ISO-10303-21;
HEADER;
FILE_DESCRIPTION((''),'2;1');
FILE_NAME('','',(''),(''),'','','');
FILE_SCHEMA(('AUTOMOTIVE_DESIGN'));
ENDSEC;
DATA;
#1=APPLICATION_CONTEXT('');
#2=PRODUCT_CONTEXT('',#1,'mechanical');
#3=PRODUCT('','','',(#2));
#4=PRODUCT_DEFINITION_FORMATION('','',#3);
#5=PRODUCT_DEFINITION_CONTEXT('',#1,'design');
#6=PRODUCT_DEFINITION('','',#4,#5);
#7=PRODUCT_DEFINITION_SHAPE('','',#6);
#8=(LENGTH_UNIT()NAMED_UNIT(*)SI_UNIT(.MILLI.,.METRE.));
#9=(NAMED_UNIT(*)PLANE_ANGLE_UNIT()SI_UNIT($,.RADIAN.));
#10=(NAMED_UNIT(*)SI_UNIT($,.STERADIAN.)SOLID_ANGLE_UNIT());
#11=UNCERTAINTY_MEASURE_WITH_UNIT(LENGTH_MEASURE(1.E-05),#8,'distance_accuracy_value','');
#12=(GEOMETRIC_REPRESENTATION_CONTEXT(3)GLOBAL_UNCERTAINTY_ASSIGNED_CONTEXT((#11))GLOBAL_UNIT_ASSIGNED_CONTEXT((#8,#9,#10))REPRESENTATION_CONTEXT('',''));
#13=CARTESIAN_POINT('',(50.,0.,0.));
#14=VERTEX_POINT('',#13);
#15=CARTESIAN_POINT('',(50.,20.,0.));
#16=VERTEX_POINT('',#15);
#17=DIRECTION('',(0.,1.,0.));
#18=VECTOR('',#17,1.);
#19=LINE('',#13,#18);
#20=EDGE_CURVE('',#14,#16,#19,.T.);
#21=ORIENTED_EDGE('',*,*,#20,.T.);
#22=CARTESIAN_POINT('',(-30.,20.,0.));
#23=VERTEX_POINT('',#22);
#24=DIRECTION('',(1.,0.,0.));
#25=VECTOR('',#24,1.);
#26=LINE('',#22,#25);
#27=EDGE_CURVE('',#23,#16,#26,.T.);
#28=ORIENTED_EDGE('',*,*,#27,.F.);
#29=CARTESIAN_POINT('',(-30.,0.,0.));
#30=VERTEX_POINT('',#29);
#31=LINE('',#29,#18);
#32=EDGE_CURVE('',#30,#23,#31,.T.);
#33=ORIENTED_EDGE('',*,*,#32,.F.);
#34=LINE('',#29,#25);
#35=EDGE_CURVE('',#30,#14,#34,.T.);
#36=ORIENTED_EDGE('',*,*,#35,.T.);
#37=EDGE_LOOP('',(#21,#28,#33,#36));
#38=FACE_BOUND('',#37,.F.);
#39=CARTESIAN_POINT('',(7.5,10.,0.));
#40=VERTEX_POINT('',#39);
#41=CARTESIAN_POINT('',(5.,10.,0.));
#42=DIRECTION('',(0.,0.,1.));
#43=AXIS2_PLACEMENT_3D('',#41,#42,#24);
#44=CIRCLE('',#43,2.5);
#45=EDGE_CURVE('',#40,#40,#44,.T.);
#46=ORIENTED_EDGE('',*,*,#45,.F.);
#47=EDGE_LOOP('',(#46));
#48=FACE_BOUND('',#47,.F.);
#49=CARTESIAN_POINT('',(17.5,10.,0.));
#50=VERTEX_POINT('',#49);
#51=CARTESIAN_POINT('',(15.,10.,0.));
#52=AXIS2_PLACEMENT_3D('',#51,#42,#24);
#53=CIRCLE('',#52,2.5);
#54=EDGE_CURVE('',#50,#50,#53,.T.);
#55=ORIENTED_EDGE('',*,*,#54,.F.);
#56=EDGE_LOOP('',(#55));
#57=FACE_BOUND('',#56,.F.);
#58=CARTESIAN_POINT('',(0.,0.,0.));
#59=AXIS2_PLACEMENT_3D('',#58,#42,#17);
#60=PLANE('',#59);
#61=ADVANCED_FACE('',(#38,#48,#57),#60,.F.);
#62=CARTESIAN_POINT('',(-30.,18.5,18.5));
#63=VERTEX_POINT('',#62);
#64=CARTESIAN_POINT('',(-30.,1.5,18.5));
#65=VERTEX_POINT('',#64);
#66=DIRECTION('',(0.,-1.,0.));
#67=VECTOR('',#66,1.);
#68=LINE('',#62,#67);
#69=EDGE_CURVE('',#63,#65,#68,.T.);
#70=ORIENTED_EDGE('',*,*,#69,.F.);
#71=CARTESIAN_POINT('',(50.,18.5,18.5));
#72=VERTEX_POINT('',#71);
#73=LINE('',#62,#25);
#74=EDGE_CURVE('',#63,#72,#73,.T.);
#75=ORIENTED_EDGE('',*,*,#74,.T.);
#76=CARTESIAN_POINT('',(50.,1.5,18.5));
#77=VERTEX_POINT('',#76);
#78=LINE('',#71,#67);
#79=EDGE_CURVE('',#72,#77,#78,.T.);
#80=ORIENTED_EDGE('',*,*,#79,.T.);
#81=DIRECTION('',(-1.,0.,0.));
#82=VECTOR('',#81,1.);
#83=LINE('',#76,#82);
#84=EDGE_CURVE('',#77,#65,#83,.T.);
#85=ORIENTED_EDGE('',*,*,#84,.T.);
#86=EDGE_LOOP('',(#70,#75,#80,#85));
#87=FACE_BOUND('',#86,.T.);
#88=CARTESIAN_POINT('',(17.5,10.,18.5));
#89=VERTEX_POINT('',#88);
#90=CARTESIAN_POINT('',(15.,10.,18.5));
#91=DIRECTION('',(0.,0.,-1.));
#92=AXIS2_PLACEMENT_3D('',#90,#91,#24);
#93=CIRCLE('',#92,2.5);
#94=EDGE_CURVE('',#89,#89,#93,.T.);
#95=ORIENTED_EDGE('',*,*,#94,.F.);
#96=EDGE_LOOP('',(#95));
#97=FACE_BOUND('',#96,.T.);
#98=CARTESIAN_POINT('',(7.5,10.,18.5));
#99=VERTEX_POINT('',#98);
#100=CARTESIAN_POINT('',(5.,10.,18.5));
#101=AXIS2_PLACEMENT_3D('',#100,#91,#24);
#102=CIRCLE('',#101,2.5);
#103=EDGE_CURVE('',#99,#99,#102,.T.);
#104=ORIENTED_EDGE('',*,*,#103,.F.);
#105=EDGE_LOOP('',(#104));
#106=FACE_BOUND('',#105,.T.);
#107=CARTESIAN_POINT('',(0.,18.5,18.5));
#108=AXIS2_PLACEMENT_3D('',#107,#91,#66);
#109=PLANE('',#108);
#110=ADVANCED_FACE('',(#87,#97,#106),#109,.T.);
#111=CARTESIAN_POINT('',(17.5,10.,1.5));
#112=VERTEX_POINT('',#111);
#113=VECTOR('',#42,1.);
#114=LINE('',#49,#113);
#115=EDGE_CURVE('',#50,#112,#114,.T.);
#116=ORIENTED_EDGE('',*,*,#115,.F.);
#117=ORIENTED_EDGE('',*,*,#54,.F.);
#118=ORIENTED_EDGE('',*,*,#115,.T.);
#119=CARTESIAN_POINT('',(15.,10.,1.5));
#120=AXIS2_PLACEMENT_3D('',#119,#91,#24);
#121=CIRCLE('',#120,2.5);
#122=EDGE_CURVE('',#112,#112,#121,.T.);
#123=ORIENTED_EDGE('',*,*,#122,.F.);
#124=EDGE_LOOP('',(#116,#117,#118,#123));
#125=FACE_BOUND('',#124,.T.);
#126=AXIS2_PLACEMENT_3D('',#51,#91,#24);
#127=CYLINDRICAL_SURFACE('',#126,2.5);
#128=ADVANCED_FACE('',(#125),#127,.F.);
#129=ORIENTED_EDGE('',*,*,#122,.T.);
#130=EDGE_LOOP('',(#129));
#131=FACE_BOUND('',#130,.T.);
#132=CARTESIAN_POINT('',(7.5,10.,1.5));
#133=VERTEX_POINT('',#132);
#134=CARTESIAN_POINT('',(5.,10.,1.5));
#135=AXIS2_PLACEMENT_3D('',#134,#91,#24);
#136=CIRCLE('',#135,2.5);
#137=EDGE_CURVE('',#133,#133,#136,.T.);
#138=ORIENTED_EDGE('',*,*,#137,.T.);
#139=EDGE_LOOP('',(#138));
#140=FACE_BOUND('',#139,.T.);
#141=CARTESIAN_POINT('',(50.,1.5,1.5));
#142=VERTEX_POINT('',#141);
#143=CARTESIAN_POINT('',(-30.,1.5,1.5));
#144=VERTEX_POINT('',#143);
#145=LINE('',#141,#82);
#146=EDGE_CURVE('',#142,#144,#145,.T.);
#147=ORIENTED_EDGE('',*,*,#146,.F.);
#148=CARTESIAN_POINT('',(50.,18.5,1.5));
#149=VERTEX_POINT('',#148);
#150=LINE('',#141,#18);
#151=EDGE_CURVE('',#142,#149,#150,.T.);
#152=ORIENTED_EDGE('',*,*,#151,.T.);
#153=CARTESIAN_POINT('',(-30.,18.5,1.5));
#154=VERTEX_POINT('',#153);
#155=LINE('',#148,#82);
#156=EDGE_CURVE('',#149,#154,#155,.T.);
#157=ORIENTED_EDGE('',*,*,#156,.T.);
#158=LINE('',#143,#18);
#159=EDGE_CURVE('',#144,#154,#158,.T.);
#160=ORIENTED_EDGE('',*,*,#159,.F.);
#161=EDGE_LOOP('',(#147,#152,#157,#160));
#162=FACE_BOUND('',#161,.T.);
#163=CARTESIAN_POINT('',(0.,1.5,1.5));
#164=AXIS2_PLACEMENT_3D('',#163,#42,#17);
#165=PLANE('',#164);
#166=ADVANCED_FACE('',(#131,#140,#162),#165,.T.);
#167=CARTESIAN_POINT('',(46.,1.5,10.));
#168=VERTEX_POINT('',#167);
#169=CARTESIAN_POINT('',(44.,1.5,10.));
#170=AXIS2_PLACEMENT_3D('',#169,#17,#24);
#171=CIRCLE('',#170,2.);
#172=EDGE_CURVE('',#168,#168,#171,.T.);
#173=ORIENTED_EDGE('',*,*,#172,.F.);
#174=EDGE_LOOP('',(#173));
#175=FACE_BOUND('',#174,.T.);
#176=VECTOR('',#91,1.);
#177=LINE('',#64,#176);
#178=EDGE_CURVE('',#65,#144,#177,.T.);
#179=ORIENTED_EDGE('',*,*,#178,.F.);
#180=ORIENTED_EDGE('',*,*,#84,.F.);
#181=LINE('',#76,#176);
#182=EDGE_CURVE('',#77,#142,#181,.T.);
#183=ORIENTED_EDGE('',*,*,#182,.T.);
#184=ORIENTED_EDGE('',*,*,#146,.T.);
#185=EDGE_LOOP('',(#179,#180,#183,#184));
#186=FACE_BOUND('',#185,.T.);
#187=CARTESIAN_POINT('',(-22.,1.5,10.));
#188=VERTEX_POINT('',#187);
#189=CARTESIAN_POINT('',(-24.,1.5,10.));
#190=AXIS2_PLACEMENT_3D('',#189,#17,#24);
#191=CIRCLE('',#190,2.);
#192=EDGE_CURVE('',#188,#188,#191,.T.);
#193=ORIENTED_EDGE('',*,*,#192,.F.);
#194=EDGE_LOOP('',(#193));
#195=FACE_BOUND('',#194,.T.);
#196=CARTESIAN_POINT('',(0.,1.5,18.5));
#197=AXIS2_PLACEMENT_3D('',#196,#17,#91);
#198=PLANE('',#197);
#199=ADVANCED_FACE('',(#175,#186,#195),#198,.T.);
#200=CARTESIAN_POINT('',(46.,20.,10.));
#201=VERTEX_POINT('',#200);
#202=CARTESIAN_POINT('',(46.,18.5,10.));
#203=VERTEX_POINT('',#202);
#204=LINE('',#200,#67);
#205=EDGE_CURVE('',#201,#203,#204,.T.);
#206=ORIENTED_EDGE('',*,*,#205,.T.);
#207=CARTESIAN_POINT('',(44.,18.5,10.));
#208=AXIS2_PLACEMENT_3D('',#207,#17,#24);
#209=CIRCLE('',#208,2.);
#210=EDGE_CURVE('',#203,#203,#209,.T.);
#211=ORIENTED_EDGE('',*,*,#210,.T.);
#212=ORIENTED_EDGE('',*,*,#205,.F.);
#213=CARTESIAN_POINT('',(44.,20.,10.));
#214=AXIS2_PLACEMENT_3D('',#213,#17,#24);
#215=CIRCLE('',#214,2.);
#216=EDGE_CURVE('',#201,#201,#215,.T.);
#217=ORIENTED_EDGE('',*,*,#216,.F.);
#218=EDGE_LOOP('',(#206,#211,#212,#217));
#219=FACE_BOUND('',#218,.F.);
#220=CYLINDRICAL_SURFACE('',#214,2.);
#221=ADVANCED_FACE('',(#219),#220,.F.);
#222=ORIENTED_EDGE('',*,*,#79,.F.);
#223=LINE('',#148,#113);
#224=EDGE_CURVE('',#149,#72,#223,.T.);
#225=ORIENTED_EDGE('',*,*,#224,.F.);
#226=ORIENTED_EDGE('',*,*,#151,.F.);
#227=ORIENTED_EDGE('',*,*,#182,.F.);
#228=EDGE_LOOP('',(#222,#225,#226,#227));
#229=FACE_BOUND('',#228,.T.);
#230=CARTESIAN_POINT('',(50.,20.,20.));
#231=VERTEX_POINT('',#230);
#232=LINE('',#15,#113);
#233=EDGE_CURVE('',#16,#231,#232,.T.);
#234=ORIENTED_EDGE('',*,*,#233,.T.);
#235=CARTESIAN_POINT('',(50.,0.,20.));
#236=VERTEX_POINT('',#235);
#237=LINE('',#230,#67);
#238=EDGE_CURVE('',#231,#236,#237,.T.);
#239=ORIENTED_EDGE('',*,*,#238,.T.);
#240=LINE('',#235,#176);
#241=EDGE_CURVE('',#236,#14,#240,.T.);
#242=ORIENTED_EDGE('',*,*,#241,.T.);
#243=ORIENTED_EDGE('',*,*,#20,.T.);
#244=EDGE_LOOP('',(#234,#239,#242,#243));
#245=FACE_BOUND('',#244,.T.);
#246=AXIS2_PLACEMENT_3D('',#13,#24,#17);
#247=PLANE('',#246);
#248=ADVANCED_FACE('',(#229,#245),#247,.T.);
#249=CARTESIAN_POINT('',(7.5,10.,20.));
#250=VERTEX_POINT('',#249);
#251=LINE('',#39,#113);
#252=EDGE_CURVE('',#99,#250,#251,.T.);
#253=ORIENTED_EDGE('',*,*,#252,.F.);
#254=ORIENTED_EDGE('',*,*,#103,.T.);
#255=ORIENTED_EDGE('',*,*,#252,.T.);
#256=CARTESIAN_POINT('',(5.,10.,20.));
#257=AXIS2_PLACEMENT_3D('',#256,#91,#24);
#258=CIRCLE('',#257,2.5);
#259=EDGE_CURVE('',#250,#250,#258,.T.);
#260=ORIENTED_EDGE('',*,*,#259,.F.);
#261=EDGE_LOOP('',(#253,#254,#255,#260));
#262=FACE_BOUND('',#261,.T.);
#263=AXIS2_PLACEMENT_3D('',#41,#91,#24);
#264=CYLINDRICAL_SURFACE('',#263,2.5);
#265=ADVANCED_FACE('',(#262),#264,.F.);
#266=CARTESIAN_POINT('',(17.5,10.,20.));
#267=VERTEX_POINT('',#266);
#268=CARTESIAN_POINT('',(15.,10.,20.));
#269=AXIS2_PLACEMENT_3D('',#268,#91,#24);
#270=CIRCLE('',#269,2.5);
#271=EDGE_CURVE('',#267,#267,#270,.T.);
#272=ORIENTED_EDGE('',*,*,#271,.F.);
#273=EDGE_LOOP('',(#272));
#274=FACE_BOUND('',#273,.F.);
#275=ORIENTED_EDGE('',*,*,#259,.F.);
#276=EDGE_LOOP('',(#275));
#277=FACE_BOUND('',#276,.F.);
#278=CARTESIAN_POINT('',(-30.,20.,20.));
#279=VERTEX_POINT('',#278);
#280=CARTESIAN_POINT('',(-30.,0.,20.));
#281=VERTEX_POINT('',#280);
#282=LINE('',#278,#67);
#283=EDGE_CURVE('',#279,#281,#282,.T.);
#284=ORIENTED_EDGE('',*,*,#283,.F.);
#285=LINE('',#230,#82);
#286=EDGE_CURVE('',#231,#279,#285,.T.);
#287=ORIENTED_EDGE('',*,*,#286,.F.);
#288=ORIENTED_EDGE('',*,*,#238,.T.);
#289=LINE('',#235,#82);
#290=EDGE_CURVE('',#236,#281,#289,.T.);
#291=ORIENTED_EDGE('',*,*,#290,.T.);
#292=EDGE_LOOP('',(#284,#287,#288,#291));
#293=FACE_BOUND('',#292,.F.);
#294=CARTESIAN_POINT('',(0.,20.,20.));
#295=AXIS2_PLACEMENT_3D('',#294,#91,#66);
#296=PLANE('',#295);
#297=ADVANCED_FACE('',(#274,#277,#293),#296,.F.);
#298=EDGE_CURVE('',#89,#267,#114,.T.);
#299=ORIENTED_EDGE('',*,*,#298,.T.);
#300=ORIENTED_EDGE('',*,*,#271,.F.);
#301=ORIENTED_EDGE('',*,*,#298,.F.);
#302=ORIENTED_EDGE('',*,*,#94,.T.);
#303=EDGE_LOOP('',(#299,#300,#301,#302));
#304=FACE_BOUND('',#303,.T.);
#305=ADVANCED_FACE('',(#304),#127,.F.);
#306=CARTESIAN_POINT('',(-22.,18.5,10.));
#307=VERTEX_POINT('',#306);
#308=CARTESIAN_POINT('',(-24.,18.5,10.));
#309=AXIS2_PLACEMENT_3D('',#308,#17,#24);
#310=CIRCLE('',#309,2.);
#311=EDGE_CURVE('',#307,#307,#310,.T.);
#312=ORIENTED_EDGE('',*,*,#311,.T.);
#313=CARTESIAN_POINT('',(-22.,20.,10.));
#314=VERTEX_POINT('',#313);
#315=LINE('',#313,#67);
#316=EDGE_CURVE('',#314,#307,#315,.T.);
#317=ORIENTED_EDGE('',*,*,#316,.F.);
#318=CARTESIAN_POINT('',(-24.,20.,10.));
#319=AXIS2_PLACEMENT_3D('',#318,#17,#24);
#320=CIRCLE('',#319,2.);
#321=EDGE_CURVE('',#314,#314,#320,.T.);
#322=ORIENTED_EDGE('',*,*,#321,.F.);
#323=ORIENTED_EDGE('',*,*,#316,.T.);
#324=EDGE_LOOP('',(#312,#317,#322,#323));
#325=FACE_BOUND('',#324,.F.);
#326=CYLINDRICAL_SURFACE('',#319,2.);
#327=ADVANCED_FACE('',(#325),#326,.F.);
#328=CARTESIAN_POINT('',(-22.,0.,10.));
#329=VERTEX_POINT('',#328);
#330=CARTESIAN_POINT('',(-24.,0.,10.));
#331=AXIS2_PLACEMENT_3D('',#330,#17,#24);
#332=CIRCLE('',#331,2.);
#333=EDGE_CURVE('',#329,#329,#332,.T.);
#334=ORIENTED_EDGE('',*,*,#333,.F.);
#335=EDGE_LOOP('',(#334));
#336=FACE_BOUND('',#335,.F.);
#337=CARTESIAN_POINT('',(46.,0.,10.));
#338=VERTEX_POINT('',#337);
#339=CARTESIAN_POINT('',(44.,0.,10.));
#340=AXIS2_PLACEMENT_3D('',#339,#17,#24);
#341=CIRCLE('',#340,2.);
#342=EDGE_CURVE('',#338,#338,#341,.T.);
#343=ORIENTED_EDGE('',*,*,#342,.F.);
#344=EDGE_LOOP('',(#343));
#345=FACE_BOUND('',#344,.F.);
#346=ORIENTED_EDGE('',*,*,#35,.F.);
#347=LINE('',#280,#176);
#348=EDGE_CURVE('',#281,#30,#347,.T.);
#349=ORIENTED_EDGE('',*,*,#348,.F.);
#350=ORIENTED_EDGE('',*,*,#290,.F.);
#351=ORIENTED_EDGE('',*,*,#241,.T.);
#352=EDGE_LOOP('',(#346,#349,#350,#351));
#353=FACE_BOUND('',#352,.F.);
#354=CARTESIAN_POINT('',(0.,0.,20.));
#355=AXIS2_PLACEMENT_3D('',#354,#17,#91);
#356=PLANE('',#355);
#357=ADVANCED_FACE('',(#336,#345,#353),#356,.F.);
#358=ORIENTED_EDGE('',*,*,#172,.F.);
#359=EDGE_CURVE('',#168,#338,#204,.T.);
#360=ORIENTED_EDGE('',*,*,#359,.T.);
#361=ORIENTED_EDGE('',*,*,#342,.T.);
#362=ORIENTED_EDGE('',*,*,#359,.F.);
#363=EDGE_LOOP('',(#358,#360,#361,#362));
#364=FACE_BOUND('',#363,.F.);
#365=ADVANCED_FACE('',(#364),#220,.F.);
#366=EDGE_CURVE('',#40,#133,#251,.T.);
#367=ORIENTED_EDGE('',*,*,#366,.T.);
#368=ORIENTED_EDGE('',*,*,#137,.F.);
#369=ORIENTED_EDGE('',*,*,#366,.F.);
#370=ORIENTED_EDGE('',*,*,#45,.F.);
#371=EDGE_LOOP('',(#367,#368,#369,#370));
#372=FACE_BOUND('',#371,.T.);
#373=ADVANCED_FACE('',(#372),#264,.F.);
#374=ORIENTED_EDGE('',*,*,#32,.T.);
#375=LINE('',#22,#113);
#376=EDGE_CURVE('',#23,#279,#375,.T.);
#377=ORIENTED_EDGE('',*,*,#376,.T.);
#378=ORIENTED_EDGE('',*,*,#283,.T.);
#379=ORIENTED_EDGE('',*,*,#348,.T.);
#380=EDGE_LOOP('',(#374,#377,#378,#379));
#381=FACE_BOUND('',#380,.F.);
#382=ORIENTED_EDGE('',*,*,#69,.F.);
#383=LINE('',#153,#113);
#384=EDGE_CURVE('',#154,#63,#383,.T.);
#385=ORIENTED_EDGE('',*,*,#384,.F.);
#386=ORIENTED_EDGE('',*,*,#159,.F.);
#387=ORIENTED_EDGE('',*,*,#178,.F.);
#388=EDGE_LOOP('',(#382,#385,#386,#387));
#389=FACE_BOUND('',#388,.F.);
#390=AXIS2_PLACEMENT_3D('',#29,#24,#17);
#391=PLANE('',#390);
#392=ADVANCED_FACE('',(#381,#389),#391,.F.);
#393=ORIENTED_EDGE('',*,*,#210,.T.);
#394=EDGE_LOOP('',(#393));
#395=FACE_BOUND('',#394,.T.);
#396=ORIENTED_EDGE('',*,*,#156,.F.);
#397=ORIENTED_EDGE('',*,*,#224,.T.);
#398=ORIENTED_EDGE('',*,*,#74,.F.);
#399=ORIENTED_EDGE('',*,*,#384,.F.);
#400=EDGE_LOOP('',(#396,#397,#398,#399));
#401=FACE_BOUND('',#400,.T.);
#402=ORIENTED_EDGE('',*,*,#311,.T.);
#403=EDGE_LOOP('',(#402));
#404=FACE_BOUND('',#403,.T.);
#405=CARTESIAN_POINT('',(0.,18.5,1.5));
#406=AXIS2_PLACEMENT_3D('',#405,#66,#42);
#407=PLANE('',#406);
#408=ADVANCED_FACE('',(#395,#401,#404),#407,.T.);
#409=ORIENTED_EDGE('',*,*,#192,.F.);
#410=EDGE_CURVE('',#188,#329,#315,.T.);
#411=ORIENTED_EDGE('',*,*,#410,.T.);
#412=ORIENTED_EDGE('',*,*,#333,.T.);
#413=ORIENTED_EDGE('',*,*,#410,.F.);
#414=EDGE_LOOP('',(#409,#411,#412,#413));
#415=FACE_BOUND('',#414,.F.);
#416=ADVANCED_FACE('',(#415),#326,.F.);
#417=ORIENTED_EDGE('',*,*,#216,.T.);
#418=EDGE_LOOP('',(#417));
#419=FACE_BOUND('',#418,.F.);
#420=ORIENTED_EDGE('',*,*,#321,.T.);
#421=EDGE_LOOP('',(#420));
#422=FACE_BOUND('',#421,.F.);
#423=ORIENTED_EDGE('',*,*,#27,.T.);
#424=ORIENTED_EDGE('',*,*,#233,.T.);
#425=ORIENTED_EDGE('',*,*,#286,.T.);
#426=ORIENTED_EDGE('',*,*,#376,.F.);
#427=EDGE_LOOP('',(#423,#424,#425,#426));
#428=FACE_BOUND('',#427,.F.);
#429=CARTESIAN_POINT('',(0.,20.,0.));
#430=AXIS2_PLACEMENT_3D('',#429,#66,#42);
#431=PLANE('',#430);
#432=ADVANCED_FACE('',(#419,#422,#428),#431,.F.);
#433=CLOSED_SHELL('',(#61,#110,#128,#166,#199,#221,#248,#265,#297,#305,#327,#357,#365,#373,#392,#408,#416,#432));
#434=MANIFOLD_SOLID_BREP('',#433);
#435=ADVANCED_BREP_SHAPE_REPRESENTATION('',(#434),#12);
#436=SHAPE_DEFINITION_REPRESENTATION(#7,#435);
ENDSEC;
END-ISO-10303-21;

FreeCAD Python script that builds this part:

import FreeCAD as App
import Part
import Sketcher
Q = App.Units.Quantity

doc = App.newDocument("Part")
body = doc.addObject("PartDesign::Body", "Body")

# Sketch on YZ plane
sketch1 = body.newObject("Sketcher::SketchObject", "Sketch")
sketch1.AttachmentSupport = (doc.getObject("YZ_Plane"), [""])
sketch1.MapMode = "FlatFace"
sketch1.addGeometry([
    Part.LineSegment(App.Vector(0, 20, 0), App.Vector(0, 0, 0)),  # 0
    Part.LineSegment(App.Vector(0, 0, 0), App.Vector(20, 0, 0)),  # 1
    Part.LineSegment(App.Vector(20, 0, 0), App.Vector(20, 20, 0)),  # 2
    Part.LineSegment(App.Vector(20, 20, 0), App.Vector(0, 20, 0)),  # 3
    Part.LineSegment(App.Vector(2, 18, 0), App.Vector(18, 18, 0)),  # 4
    Part.LineSegment(App.Vector(18, 18, 0), App.Vector(18, 2, 0)),  # 5
    Part.LineSegment(App.Vector(18, 2, 0), App.Vector(2, 2, 0)),  # 6
    Part.LineSegment(App.Vector(2, 2, 0), App.Vector(2, 18, 0)),  # 7
], False)
sketch1.addConstraint([
    Sketcher.Constraint("Coincident", 0, 2, 1, 1),
    Sketcher.Constraint("Coincident", 1, 2, 2, 1),
    Sketcher.Constraint("Coincident", 2, 2, 3, 1),
    Sketcher.Constraint("Coincident", 3, 2, 0, 1),
    Sketcher.Constraint("Coincident", 4, 2, 5, 1),
    Sketcher.Constraint("Coincident", 5, 2, 6, 1),
    Sketcher.Constraint("Coincident", 6, 2, 7, 1),
    Sketcher.Constraint("Coincident", 7, 2, 4, 1),
    Sketcher.Constraint("Vertical", 0),
    Sketcher.Constraint("Horizontal", 1),
    Sketcher.Constraint("Vertical", 2),
    Sketcher.Constraint("Horizontal", 3),
    Sketcher.Constraint("Horizontal", 4),
    Sketcher.Constraint("Vertical", 5),
    Sketcher.Constraint("Horizontal", 6),
    Sketcher.Constraint("Vertical", 7),
    Sketcher.Constraint("Coincident", 0, 2, -1, 1),
    Sketcher.Constraint("Equal", 3, 0),
    Sketcher.Constraint("Equal", 6, 5),
    Sketcher.Constraint("DistanceX", 1, 1, 1, 2, Q("20 mm")),
    Sketcher.Constraint("DistanceY", -1, 1, 5, 2, Q("1.5 mm")),
    Sketcher.Constraint("DistanceX", -1, 1, 6, 2, Q("1.5 mm")),
    Sketcher.Constraint("DistanceX", 4, 2, 2, 2, Q("1.5 mm")),
])
pad1 = body.newObject("PartDesign::Pad", "Pad")
pad1.Profile = sketch1
pad1.Type = "TwoLengths"
pad1.Length = 50
pad1.Length2 = 30

# Sketch on XY plane
sketch2 = body.newObject("Sketcher::SketchObject", "Sketch001")
sketch2.AttachmentSupport = (doc.getObject("XY_Plane"), [""])
sketch2.MapMode = "FlatFace"
sketch2.addGeometry([
    Part.Circle(App.Vector(15, 10, 0), App.Vector(0, 0, 1), 2.5),
    Part.Circle(App.Vector(5, 10, 0), App.Vector(0, 0, 1), 2.5),
], False)
sketch2.addConstraint([
    Sketcher.Constraint("Equal", 0, 1),
    Sketcher.Constraint("Horizontal", 0, 3, 1, 3),
    Sketcher.Constraint("Diameter", 0, Q("5 mm")),
    Sketcher.Constraint("DistanceX", -1, 1, 0, 3, Q("15 mm")),
    Sketcher.Constraint("DistanceY", -1, 1, 0, 3, Q("10 mm")),
    Sketcher.Constraint("DistanceX", -1, 1, 1, 3, Q("5 mm")),
])
pocket1 = body.newObject("PartDesign::Pocket", "Pocket")
pocket1.Profile = sketch2
pocket1.Type = "ThroughAll"
pocket1.Reversed = True

# Sketch on XZ plane
sketch3 = body.newObject("Sketcher::SketchObject", "Sketch002")
sketch3.AttachmentSupport = (doc.getObject("XZ_Plane"), [""])
sketch3.MapMode = "FlatFace"
sketch3.AttachmentOffset = App.Placement(App.Vector(0, 0, -20), App.Rotation())
sketch3.addGeometry([
    Part.Circle(App.Vector(-24, 10, 0), App.Vector(0, 0, 1), 2),
    Part.Circle(App.Vector(44, 10, 0), App.Vector(0, 0, 1), 2),
], False)
sketch3.addConstraint([
    Sketcher.Constraint("Equal", 0, 1),
    Sketcher.Constraint("Horizontal", 0, 3, 1, 3),
    Sketcher.Constraint("Diameter", 0, Q("4 mm")),
    Sketcher.Constraint("DistanceX", 0, 3, -1, 1, Q("24 mm")),
    Sketcher.Constraint("DistanceY", -1, 1, 0, 3, Q("10 mm")),
    Sketcher.Constraint("DistanceX", -1, 1, 1, 3, Q("44 mm")),
])
pocket2 = body.newObject("PartDesign::Pocket", "Pocket001")
pocket2.Profile = sketch3
pocket2.Type = "ThroughAll"
pocket2.Reversed = True

doc.recompute()
